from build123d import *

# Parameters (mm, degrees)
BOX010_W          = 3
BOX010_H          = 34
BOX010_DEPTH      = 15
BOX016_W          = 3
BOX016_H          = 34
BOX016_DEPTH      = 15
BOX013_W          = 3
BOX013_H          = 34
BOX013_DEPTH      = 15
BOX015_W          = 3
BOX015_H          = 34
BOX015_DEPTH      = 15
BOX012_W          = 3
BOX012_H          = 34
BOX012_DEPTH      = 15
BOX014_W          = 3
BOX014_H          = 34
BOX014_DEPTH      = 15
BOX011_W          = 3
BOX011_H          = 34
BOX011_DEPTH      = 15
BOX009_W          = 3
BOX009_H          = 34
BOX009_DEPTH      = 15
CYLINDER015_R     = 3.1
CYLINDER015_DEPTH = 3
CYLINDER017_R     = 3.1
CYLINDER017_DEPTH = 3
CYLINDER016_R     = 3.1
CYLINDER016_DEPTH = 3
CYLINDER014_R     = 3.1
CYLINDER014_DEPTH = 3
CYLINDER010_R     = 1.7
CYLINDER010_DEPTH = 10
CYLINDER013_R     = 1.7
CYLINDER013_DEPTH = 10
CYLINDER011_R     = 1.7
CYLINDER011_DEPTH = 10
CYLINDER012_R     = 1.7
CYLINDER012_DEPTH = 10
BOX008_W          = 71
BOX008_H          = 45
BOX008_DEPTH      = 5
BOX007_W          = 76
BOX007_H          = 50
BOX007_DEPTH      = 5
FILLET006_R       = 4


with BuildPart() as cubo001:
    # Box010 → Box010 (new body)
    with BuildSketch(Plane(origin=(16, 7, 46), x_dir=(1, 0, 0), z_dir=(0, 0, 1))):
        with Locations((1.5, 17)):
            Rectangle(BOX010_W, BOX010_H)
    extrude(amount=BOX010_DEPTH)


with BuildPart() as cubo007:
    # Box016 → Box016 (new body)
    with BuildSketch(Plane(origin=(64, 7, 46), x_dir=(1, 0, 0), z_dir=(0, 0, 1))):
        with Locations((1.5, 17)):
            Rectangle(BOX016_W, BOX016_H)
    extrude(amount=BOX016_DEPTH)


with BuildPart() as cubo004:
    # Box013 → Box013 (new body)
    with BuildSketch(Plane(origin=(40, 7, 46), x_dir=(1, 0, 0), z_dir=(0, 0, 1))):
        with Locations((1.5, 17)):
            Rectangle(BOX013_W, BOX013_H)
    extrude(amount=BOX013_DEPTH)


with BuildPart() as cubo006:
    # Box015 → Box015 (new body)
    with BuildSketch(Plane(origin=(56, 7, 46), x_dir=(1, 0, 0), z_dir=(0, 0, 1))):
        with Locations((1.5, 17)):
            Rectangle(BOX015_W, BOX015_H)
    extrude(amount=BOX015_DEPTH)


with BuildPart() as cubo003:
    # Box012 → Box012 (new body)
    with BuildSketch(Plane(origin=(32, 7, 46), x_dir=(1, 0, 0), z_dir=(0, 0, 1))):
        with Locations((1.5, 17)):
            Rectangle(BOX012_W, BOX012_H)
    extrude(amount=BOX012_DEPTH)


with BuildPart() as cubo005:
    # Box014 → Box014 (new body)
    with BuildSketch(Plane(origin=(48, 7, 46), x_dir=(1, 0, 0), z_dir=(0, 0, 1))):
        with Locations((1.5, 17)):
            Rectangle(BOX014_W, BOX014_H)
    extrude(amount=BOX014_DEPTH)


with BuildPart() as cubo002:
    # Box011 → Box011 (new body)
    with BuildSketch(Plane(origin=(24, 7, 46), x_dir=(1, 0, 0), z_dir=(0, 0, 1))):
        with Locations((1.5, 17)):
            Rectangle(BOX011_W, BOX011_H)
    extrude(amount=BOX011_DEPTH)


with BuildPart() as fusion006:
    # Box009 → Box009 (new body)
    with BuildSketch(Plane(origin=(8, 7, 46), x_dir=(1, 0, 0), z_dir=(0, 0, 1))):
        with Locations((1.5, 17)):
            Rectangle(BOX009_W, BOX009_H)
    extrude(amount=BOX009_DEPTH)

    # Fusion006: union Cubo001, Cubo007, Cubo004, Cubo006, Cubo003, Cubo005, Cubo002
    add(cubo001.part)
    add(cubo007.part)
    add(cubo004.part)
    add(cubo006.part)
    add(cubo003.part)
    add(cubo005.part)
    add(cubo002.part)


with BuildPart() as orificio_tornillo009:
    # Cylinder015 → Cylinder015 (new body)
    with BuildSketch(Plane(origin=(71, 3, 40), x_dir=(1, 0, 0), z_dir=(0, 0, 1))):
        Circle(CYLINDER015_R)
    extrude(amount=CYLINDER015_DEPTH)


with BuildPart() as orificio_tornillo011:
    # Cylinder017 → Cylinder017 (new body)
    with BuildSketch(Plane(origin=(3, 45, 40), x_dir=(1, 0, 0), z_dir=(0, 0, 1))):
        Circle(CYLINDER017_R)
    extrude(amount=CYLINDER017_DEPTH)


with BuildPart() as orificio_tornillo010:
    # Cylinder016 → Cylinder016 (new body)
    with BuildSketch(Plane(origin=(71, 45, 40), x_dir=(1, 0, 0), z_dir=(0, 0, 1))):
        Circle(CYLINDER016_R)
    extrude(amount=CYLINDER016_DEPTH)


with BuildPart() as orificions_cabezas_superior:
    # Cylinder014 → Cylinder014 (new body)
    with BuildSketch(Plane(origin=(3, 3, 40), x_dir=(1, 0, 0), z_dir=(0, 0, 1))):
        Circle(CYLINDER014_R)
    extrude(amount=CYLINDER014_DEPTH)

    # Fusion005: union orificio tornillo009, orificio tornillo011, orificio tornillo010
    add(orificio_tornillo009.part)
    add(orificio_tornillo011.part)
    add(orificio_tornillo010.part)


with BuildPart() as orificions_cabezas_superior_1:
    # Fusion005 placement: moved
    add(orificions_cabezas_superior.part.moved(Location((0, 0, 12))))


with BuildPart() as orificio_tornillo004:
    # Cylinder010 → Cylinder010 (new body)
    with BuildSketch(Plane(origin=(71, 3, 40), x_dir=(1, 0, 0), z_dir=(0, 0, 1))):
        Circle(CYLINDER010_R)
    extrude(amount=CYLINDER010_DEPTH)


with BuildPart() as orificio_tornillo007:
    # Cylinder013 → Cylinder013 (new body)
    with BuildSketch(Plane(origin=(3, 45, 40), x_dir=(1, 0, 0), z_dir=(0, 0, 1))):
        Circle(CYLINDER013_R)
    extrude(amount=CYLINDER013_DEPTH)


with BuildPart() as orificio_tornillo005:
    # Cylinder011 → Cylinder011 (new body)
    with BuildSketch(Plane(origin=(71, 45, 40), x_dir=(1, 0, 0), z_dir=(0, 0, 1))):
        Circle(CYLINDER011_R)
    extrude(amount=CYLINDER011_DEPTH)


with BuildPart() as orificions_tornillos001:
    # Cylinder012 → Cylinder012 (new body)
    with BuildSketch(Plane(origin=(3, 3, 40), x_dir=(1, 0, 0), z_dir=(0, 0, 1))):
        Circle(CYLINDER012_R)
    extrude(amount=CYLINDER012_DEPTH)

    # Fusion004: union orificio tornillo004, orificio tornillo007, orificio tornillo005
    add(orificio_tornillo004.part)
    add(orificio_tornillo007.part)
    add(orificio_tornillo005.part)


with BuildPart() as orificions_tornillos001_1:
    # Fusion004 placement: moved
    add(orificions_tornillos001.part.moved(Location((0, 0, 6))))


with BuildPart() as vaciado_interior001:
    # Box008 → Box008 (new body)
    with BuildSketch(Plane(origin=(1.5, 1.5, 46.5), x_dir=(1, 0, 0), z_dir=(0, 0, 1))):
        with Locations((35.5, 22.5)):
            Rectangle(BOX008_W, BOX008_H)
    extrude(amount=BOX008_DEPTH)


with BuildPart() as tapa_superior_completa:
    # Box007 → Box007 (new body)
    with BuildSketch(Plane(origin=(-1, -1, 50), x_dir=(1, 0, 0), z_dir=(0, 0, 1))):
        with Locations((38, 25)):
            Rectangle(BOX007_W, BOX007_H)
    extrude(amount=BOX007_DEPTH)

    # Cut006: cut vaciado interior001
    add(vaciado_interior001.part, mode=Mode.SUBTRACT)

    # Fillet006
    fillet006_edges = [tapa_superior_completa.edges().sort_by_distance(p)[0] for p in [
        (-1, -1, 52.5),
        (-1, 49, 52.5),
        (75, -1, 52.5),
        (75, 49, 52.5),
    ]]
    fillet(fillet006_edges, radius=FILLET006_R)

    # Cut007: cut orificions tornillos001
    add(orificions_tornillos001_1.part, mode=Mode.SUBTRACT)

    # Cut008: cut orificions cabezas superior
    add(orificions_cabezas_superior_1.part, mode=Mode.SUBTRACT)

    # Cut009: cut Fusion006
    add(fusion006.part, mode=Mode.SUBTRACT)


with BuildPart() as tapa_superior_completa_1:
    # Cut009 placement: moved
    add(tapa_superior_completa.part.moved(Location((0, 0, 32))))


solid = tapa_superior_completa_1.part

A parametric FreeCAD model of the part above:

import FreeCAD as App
import Part
import Sketcher
Q = App.Units.Quantity


def edges_at(feature, points):
    """Names of the edges that pass closest to the given points."""
    edges = feature.Shape.Edges
    near = lambda p: min(range(len(edges)), key=lambda i: edges[i].distToShape(Part.Vertex(*p))[0])
    return sorted({f"Edge{near(p) + 1}" for p in points})

doc = App.newDocument("Part")
body = doc.addObject("PartDesign::Body", "Body")

# Sketch on XY plane
sketch1 = doc.addObject("Sketcher::SketchObject", "Sketch")
body.addObject(sketch1)
sketch1.AttachmentSupport = (doc.XY_Plane, [""])
sketch1.MapMode = "FlatFace"
sketch1.AttachmentOffset = App.Placement(App.Vector(0, 0, 46), App.Rotation())
sketch1.addGeometry([
    Part.LineSegment(App.Vector(16, 41, 0), App.Vector(16, 7, 0)),
    Part.LineSegment(App.Vector(16, 7, 0), App.Vector(19, 7, 0)),
    Part.LineSegment(App.Vector(19, 7, 0), App.Vector(19, 41, 0)),
    Part.LineSegment(App.Vector(19, 41, 0), App.Vector(16, 41, 0)),
], False)
sketch1.addConstraint([
    Sketcher.Constraint("Coincident", 0, 2, 1, 1),
    Sketcher.Constraint("Coincident", 1, 2, 2, 1),
    Sketcher.Constraint("Coincident", 2, 2, 3, 1),
    Sketcher.Constraint("Coincident", 3, 2, 0, 1),
    Sketcher.Constraint("Vertical", 0),
    Sketcher.Constraint("Horizontal", 1),
    Sketcher.Constraint("Vertical", 2),
    Sketcher.Constraint("Horizontal", 3),
    Sketcher.Constraint("DistanceX", 1, 1, 1, 2, Q("3 mm")),
    Sketcher.Constraint("DistanceY", 0, 2, 0, 1, Q("34 mm")),
    Sketcher.Constraint("DistanceX", -1, 1, 0, 2, Q("16 mm")),
    Sketcher.Constraint("DistanceY", -1, 1, 0, 2, Q("7 mm")),
])
pad1 = doc.addObject("PartDesign::Pad", "Pad")
body.addObject(pad1)
pad1.Profile = sketch1
pad1.Length = 15
body2 = doc.addObject("PartDesign::Body", "Body001")

# Sketch on XY plane
sketch2 = doc.addObject("Sketcher::SketchObject", "Sketch001")
body2.addObject(sketch2)
sketch2.AttachmentSupport = (doc.getObject("XY_Plane001"), [""])
sketch2.MapMode = "FlatFace"
sketch2.AttachmentOffset = App.Placement(App.Vector(0, 0, 46), App.Rotation())
sketch2.addGeometry([
    Part.LineSegment(App.Vector(64, 41, 0), App.Vector(64, 7, 0)),
    Part.LineSegment(App.Vector(64, 7, 0), App.Vector(67, 7, 0)),
    Part.LineSegment(App.Vector(67, 7, 0), App.Vector(67, 41, 0)),
    Part.LineSegment(App.Vector(67, 41, 0), App.Vector(64, 41, 0)),
], False)
sketch2.addConstraint([
    Sketcher.Constraint("Coincident", 0, 2, 1, 1),
    Sketcher.Constraint("Coincident", 1, 2, 2, 1),
    Sketcher.Constraint("Coincident", 2, 2, 3, 1),
    Sketcher.Constraint("Coincident", 3, 2, 0, 1),
    Sketcher.Constraint("Vertical", 0),
    Sketcher.Constraint("Horizontal", 1),
    Sketcher.Constraint("Vertical", 2),
    Sketcher.Constraint("Horizontal", 3),
    Sketcher.Constraint("DistanceX", 1, 1, 1, 2, Q("3 mm")),
    Sketcher.Constraint("DistanceY", 0, 2, 0, 1, Q("34 mm")),
    Sketcher.Constraint("DistanceX", -1, 1, 0, 2, Q("64 mm")),
    Sketcher.Constraint("DistanceY", -1, 1, 0, 2, Q("7 mm")),
])
pad2 = doc.addObject("PartDesign::Pad", "Pad001")
body2.addObject(pad2)
pad2.Profile = sketch2
pad2.Length = 15
body3 = doc.addObject("PartDesign::Body", "Body002")

# Sketch on XY plane
sketch3 = doc.addObject("Sketcher::SketchObject", "Sketch002")
body3.addObject(sketch3)
sketch3.AttachmentSupport = (doc.getObject("XY_Plane002"), [""])
sketch3.MapMode = "FlatFace"
sketch3.AttachmentOffset = App.Placement(App.Vector(0, 0, 46), App.Rotation())
sketch3.addGeometry([
    Part.LineSegment(App.Vector(40, 41, 0), App.Vector(40, 7, 0)),
    Part.LineSegment(App.Vector(40, 7, 0), App.Vector(43, 7, 0)),
    Part.LineSegment(App.Vector(43, 7, 0), App.Vector(43, 41, 0)),
    Part.LineSegment(App.Vector(43, 41, 0), App.Vector(40, 41, 0)),
], False)
sketch3.addConstraint([
    Sketcher.Constraint("Coincident", 0, 2, 1, 1),
    Sketcher.Constraint("Coincident", 1, 2, 2, 1),
    Sketcher.Constraint("Coincident", 2, 2, 3, 1),
    Sketcher.Constraint("Coincident", 3, 2, 0, 1),
    Sketcher.Constraint("Vertical", 0),
    Sketcher.Constraint("Horizontal", 1),
    Sketcher.Constraint("Vertical", 2),
    Sketcher.Constraint("Horizontal", 3),
    Sketcher.Constraint("DistanceX", 1, 1, 1, 2, Q("3 mm")),
    Sketcher.Constraint("DistanceY", 0, 2, 0, 1, Q("34 mm")),
    Sketcher.Constraint("DistanceX", -1, 1, 0, 2, Q("40 mm")),
    Sketcher.Constraint("DistanceY", -1, 1, 0, 2, Q("7 mm")),
])
pad3 = doc.addObject("PartDesign::Pad", "Pad002")
body3.addObject(pad3)
pad3.Profile = sketch3
pad3.Length = 15
body4 = doc.addObject("PartDesign::Body", "Body003")

# Sketch on XY plane
sketch4 = doc.addObject("Sketcher::SketchObject", "Sketch003")
body4.addObject(sketch4)
sketch4.AttachmentSupport = (doc.getObject("XY_Plane003"), [""])
sketch4.MapMode = "FlatFace"
sketch4.AttachmentOffset = App.Placement(App.Vector(0, 0, 46), App.Rotation())
sketch4.addGeometry([
    Part.LineSegment(App.Vector(56, 41, 0), App.Vector(56, 7, 0)),
    Part.LineSegment(App.Vector(56, 7, 0), App.Vector(59, 7, 0)),
    Part.LineSegment(App.Vector(59, 7, 0), App.Vector(59, 41, 0)),
    Part.LineSegment(App.Vector(59, 41, 0), App.Vector(56, 41, 0)),
], False)
sketch4.addConstraint([
    Sketcher.Constraint("Coincident", 0, 2, 1, 1),
    Sketcher.Constraint("Coincident", 1, 2, 2, 1),
    Sketcher.Constraint("Coincident", 2, 2, 3, 1),
    Sketcher.Constraint("Coincident", 3, 2, 0, 1),
    Sketcher.Constraint("Vertical", 0),
    Sketcher.Constraint("Horizontal", 1),
    Sketcher.Constraint("Vertical", 2),
    Sketcher.Constraint("Horizontal", 3),
    Sketcher.Constraint("DistanceX", 1, 1, 1, 2, Q("3 mm")),
    Sketcher.Constraint("DistanceY", 0, 2, 0, 1, Q("34 mm")),
    Sketcher.Constraint("DistanceX", -1, 1, 0, 2, Q("56 mm")),
    Sketcher.Constraint("DistanceY", -1, 1, 0, 2, Q("7 mm")),
])
pad4 = doc.addObject("PartDesign::Pad", "Pad003")
body4.addObject(pad4)
pad4.Profile = sketch4
pad4.Length = 15
body5 = doc.addObject("PartDesign::Body", "Body004")

# Sketch on XY plane
sketch5 = doc.addObject("Sketcher::SketchObject", "Sketch004")
body5.addObject(sketch5)
sketch5.AttachmentSupport = (doc.getObject("XY_Plane004"), [""])
sketch5.MapMode = "FlatFace"
sketch5.AttachmentOffset = App.Placement(App.Vector(0, 0, 46), App.Rotation())
sketch5.addGeometry([
    Part.LineSegment(App.Vector(32, 41, 0), App.Vector(32, 7, 0)),
    Part.LineSegment(App.Vector(32, 7, 0), App.Vector(35, 7, 0)),
    Part.LineSegment(App.Vector(35, 7, 0), App.Vector(35, 41, 0)),
    Part.LineSegment(App.Vector(35, 41, 0), App.Vector(32, 41, 0)),
], False)
sketch5.addConstraint([
    Sketcher.Constraint("Coincident", 0, 2, 1, 1),
    Sketcher.Constraint("Coincident", 1, 2, 2, 1),
    Sketcher.Constraint("Coincident", 2, 2, 3, 1),
    Sketcher.Constraint("Coincident", 3, 2, 0, 1),
    Sketcher.Constraint("Vertical", 0),
    Sketcher.Constraint("Horizontal", 1),
    Sketcher.Constraint("Vertical", 2),
    Sketcher.Constraint("Horizontal", 3),
    Sketcher.Constraint("DistanceX", 1, 1, 1, 2, Q("3 mm")),
    Sketcher.Constraint("DistanceY", 0, 2, 0, 1, Q("34 mm")),
    Sketcher.Constraint("DistanceX", -1, 1, 0, 2, Q("32 mm")),
    Sketcher.Constraint("DistanceY", -1, 1, 0, 2, Q("7 mm")),
])
pad5 = doc.addObject("PartDesign::Pad", "Pad004")
body5.addObject(pad5)
pad5.Profile = sketch5
pad5.Length = 15
body6 = doc.addObject("PartDesign::Body", "Body005")

# Sketch on XY plane
sketch6 = doc.addObject("Sketcher::SketchObject", "Sketch005")
body6.addObject(sketch6)
sketch6.AttachmentSupport = (doc.getObject("XY_Plane005"), [""])
sketch6.MapMode = "FlatFace"
sketch6.AttachmentOffset = App.Placement(App.Vector(0, 0, 46), App.Rotation())
sketch6.addGeometry([
    Part.LineSegment(App.Vector(48, 41, 0), App.Vector(48, 7, 0)),
    Part.LineSegment(App.Vector(48, 7, 0), App.Vector(51, 7, 0)),
    Part.LineSegment(App.Vector(51, 7, 0), App.Vector(51, 41, 0)),
    Part.LineSegment(App.Vector(51, 41, 0), App.Vector(48, 41, 0)),
], False)
sketch6.addConstraint([
    Sketcher.Constraint("Coincident", 0, 2, 1, 1),
    Sketcher.Constraint("Coincident", 1, 2, 2, 1),
    Sketcher.Constraint("Coincident", 2, 2, 3, 1),
    Sketcher.Constraint("Coincident", 3, 2, 0, 1),
    Sketcher.Constraint("Vertical", 0),
    Sketcher.Constraint("Horizontal", 1),
    Sketcher.Constraint("Vertical", 2),
    Sketcher.Constraint("Horizontal", 3),
    Sketcher.Constraint("DistanceX", 1, 1, 1, 2, Q("3 mm")),
    Sketcher.Constraint("DistanceY", 0, 2, 0, 1, Q("34 mm")),
    Sketcher.Constraint("DistanceX", -1, 1, 0, 2, Q("48 mm")),
    Sketcher.Constraint("DistanceY", -1, 1, 0, 2, Q("7 mm")),
])
pad6 = doc.addObject("PartDesign::Pad", "Pad005")
body6.addObject(pad6)
pad6.Profile = sketch6
pad6.Length = 15
body7 = doc.addObject("PartDesign::Body", "Body006")

# Sketch on XY plane
sketch7 = doc.addObject("Sketcher::SketchObject", "Sketch006")
body7.addObject(sketch7)
sketch7.AttachmentSupport = (doc.getObject("XY_Plane006"), [""])
sketch7.MapMode = "FlatFace"
sketch7.AttachmentOffset = App.Placement(App.Vector(0, 0, 46), App.Rotation())
sketch7.addGeometry([
    Part.LineSegment(App.Vector(24, 41, 0), App.Vector(24, 7, 0)),
    Part.LineSegment(App.Vector(24, 7, 0), App.Vector(27, 7, 0)),
    Part.LineSegment(App.Vector(27, 7, 0), App.Vector(27, 41, 0)),
    Part.LineSegment(App.Vector(27, 41, 0), App.Vector(24, 41, 0)),
], False)
sketch7.addConstraint([
    Sketcher.Constraint("Coincident", 0, 2, 1, 1),
    Sketcher.Constraint("Coincident", 1, 2, 2, 1),
    Sketcher.Constraint("Coincident", 2, 2, 3, 1),
    Sketcher.Constraint("Coincident", 3, 2, 0, 1),
    Sketcher.Constraint("Vertical", 0),
    Sketcher.Constraint("Horizontal", 1),
    Sketcher.Constraint("Vertical", 2),
    Sketcher.Constraint("Horizontal", 3),
    Sketcher.Constraint("DistanceX", 1, 1, 1, 2, Q("3 mm")),
    Sketcher.Constraint("DistanceY", 0, 2, 0, 1, Q("34 mm")),
    Sketcher.Constraint("DistanceX", -1, 1, 0, 2, Q("24 mm")),
    Sketcher.Constraint("DistanceY", -1, 1, 0, 2, Q("7 mm")),
])
pad7 = doc.addObject("PartDesign::Pad", "Pad006")
body7.addObject(pad7)
pad7.Profile = sketch7
pad7.Length = 15
body8 = doc.addObject("PartDesign::Body", "Body007")
body8.AllowCompound = True

# Sketch on XY plane
sketch8 = doc.addObject("Sketcher::SketchObject", "Sketch007")
body8.addObject(sketch8)
sketch8.AttachmentSupport = (doc.getObject("XY_Plane007"), [""])
sketch8.MapMode = "FlatFace"
sketch8.AttachmentOffset = App.Placement(App.Vector(0, 0, 46), App.Rotation())
sketch8.addGeometry([
    Part.LineSegment(App.Vector(8, 41, 0), App.Vector(8, 7, 0)),
    Part.LineSegment(App.Vector(8, 7, 0), App.Vector(11, 7, 0)),
    Part.LineSegment(App.Vector(11, 7, 0), App.Vector(11, 41, 0)),
    Part.LineSegment(App.Vector(11, 41, 0), App.Vector(8, 41, 0)),
], False)
sketch8.addConstraint([
    Sketcher.Constraint("Coincident", 0, 2, 1, 1),
    Sketcher.Constraint("Coincident", 1, 2, 2, 1),
    Sketcher.Constraint("Coincident", 2, 2, 3, 1),
    Sketcher.Constraint("Coincident", 3, 2, 0, 1),
    Sketcher.Constraint("Vertical", 0),
    Sketcher.Constraint("Horizontal", 1),
    Sketcher.Constraint("Vertical", 2),
    Sketcher.Constraint("Horizontal", 3),
    Sketcher.Constraint("DistanceX", 1, 1, 1, 2, Q("3 mm")),
    Sketcher.Constraint("DistanceY", 0, 2, 0, 1, Q("34 mm")),
    Sketcher.Constraint("DistanceX", -1, 1, 0, 2, Q("8 mm")),
    Sketcher.Constraint("DistanceY", -1, 1, 0, 2, Q("7 mm")),
])
pad8 = doc.addObject("PartDesign::Pad", "Pad007")
body8.addObject(pad8)
pad8.Profile = sketch8
pad8.Length = 15
doc.recompute()

boolean = doc.addObject("PartDesign::Boolean", "Boolean")
body8.addObject(boolean)
boolean.Type = "Fuse"
boolean.addObjects([body])
doc.recompute()

boolean2 = doc.addObject("PartDesign::Boolean", "Boolean001")
body8.addObject(boolean2)
boolean2.Type = "Fuse"
boolean2.addObjects([body2])
doc.recompute()

boolean3 = doc.addObject("PartDesign::Boolean", "Boolean002")
body8.addObject(boolean3)
boolean3.Type = "Fuse"
boolean3.addObjects([body3])
doc.recompute()

boolean4 = doc.addObject("PartDesign::Boolean", "Boolean003")
body8.addObject(boolean4)
boolean4.Type = "Fuse"
boolean4.addObjects([body4])
doc.recompute()

boolean5 = doc.addObject("PartDesign::Boolean", "Boolean004")
body8.addObject(boolean5)
boolean5.Type = "Fuse"
boolean5.addObjects([body5])
doc.recompute()

boolean6 = doc.addObject("PartDesign::Boolean", "Boolean005")
body8.addObject(boolean6)
boolean6.Type = "Fuse"
boolean6.addObjects([body6])
doc.recompute()

boolean7 = doc.addObject("PartDesign::Boolean", "Boolean006")
body8.addObject(boolean7)
boolean7.Type = "Fuse"
boolean7.addObjects([body7])
body9 = doc.addObject("PartDesign::Body", "Body008")

# Sketch on XY plane
sketch9 = doc.addObject("Sketcher::SketchObject", "Sketch008")
body9.addObject(sketch9)
sketch9.AttachmentSupport = (doc.getObject("XY_Plane008"), [""])
sketch9.MapMode = "FlatFace"
sketch9.AttachmentOffset = App.Placement(App.Vector(0, 0, 40), App.Rotation())
sketch9.addGeometry(Part.Circle(App.Vector(71, 3, 0), App.Vector(0, 0, 1), 3.1), False)
sketch9.addConstraint([
    Sketcher.Constraint("Diameter", 0, Q("6.2 mm")),
    Sketcher.Constraint("DistanceX", -1, 1, 0, 3, Q("71 mm")),
    Sketcher.Constraint("DistanceY", -1, 1, 0, 3, Q("3 mm")),
])
pad9 = doc.addObject("PartDesign::Pad", "Pad008")
body9.addObject(pad9)
pad9.Profile = sketch9
pad9.Length = 3
body10 = doc.addObject("PartDesign::Body", "Body009")

# Sketch on XY plane
sketch10 = doc.addObject("Sketcher::SketchObject", "Sketch009")
body10.addObject(sketch10)
sketch10.AttachmentSupport = (doc.getObject("XY_Plane009"), [""])
sketch10.MapMode = "FlatFace"
sketch10.AttachmentOffset = App.Placement(App.Vector(0, 0, 40), App.Rotation())
sketch10.addGeometry(Part.Circle(App.Vector(3, 45, 0), App.Vector(0, 0, 1), 3.1), False)
sketch10.addConstraint([
    Sketcher.Constraint("Diameter", 0, Q("6.2 mm")),
    Sketcher.Constraint("DistanceX", -1, 1, 0, 3, Q("3 mm")),
    Sketcher.Constraint("DistanceY", -1, 1, 0, 3, Q("45 mm")),
])
pad10 = doc.addObject("PartDesign::Pad", "Pad009")
body10.addObject(pad10)
pad10.Profile = sketch10
pad10.Length = 3
body11 = doc.addObject("PartDesign::Body", "Body010")

# Sketch on XY plane
sketch11 = doc.addObject("Sketcher::SketchObject", "Sketch010")
body11.addObject(sketch11)
sketch11.AttachmentSupport = (doc.getObject("XY_Plane010"), [""])
sketch11.MapMode = "FlatFace"
sketch11.AttachmentOffset = App.Placement(App.Vector(0, 0, 40), App.Rotation())
sketch11.addGeometry(Part.Circle(App.Vector(71, 45, 0), App.Vector(0, 0, 1), 3.1), False)
sketch11.addConstraint([
    Sketcher.Constraint("Diameter", 0, Q("6.2 mm")),
    Sketcher.Constraint("DistanceX", -1, 1, 0, 3, Q("71 mm")),
    Sketcher.Constraint("DistanceY", -1, 1, 0, 3, Q("45 mm")),
])
pad11 = doc.addObject("PartDesign::Pad", "Pad010")
body11.addObject(pad11)
pad11.Profile = sketch11
pad11.Length = 3
body12 = doc.addObject("PartDesign::Body", "Body011")
body12.AllowCompound = True

# Sketch on XY plane
sketch12 = doc.addObject("Sketcher::SketchObject", "Sketch011")
body12.addObject(sketch12)
sketch12.AttachmentSupport = (doc.getObject("XY_Plane011"), [""])
sketch12.MapMode = "FlatFace"
sketch12.AttachmentOffset = App.Placement(App.Vector(0, 0, 40), App.Rotation())
sketch12.addGeometry(Part.Circle(App.Vector(3, 3, 0), App.Vector(0, 0, 1), 3.1), False)
sketch12.addConstraint([
    Sketcher.Constraint("Diameter", 0, Q("6.2 mm")),
    Sketcher.Constraint("DistanceX", -1, 1, 0, 3, Q("3 mm")),
    Sketcher.Constraint("DistanceY", -1, 1, 0, 3, Q("3 mm")),
])
pad12 = doc.addObject("PartDesign::Pad", "Pad011")
body12.addObject(pad12)
pad12.Profile = sketch12
pad12.Length = 3
doc.recompute()

boolean8 = doc.addObject("PartDesign::Boolean", "Boolean007")
body12.addObject(boolean8)
boolean8.Type = "Fuse"
boolean8.addObjects([body9])
doc.recompute()

boolean9 = doc.addObject("PartDesign::Boolean", "Boolean008")
body12.addObject(boolean9)
boolean9.Type = "Fuse"
boolean9.addObjects([body10])
doc.recompute()

boolean10 = doc.addObject("PartDesign::Boolean", "Boolean009")
body12.addObject(boolean10)
boolean10.Type = "Fuse"
boolean10.addObjects([body11])
body13 = doc.addObject("PartDesign::Body", "Body012")
body13.AllowCompound = True
doc.recompute()

body12.Placement = App.Placement(App.Vector(0, 0, 12), App.Rotation(App.Vector(0, 0, 1), 0))
boolean11 = doc.addObject("PartDesign::Boolean", "Boolean010")
body13.addObject(boolean11)
boolean11.Type = "Fuse"
boolean11.addObjects([body12])
body14 = doc.addObject("PartDesign::Body", "Body013")

# Sketch on XY plane
sketch13 = doc.addObject("Sketcher::SketchObject", "Sketch012")
body14.addObject(sketch13)
sketch13.AttachmentSupport = (doc.getObject("XY_Plane013"), [""])
sketch13.MapMode = "FlatFace"
sketch13.AttachmentOffset = App.Placement(App.Vector(0, 0, 40), App.Rotation())
sketch13.addGeometry(Part.Circle(App.Vector(71, 3, 0), App.Vector(0, 0, 1), 1.7), False)
sketch13.addConstraint([
    Sketcher.Constraint("Diameter", 0, Q("3.4 mm")),
    Sketcher.Constraint("DistanceX", -1, 1, 0, 3, Q("71 mm")),
    Sketcher.Constraint("DistanceY", -1, 1, 0, 3, Q("3 mm")),
])
pad13 = doc.addObject("PartDesign::Pad", "Pad012")
body14.addObject(pad13)
pad13.Profile = sketch13
pad13.Length = 10
body15 = doc.addObject("PartDesign::Body", "Body014")

# Sketch on XY plane
sketch14 = doc.addObject("Sketcher::SketchObject", "Sketch013")
body15.addObject(sketch14)
sketch14.AttachmentSupport = (doc.getObject("XY_Plane014"), [""])
sketch14.MapMode = "FlatFace"
sketch14.AttachmentOffset = App.Placement(App.Vector(0, 0, 40), App.Rotation())
sketch14.addGeometry(Part.Circle(App.Vector(3, 45, 0), App.Vector(0, 0, 1), 1.7), False)
sketch14.addConstraint([
    Sketcher.Constraint("Diameter", 0, Q("3.4 mm")),
    Sketcher.Constraint("DistanceX", -1, 1, 0, 3, Q("3 mm")),
    Sketcher.Constraint("DistanceY", -1, 1, 0, 3, Q("45 mm")),
])
pad14 = doc.addObject("PartDesign::Pad", "Pad013")
body15.addObject(pad14)
pad14.Profile = sketch14
pad14.Length = 10
body16 = doc.addObject("PartDesign::Body", "Body015")

# Sketch on XY plane
sketch15 = doc.addObject("Sketcher::SketchObject", "Sketch014")
body16.addObject(sketch15)
sketch15.AttachmentSupport = (doc.getObject("XY_Plane015"), [""])
sketch15.MapMode = "FlatFace"
sketch15.AttachmentOffset = App.Placement(App.Vector(0, 0, 40), App.Rotation())
sketch15.addGeometry(Part.Circle(App.Vector(71, 45, 0), App.Vector(0, 0, 1), 1.7), False)
sketch15.addConstraint([
    Sketcher.Constraint("Diameter", 0, Q("3.4 mm")),
    Sketcher.Constraint("DistanceX", -1, 1, 0, 3, Q("71 mm")),
    Sketcher.Constraint("DistanceY", -1, 1, 0, 3, Q("45 mm")),
])
pad15 = doc.addObject("PartDesign::Pad", "Pad014")
body16.addObject(pad15)
pad15.Profile = sketch15
pad15.Length = 10
body17 = doc.addObject("PartDesign::Body", "Body016")
body17.AllowCompound = True

# Sketch on XY plane
sketch16 = doc.addObject("Sketcher::SketchObject", "Sketch015")
body17.addObject(sketch16)
sketch16.AttachmentSupport = (doc.getObject("XY_Plane016"), [""])
sketch16.MapMode = "FlatFace"
sketch16.AttachmentOffset = App.Placement(App.Vector(0, 0, 40), App.Rotation())
sketch16.addGeometry(Part.Circle(App.Vector(3, 3, 0), App.Vector(0, 0, 1), 1.7), False)
sketch16.addConstraint([
    Sketcher.Constraint("Diameter", 0, Q("3.4 mm")),
    Sketcher.Constraint("DistanceX", -1, 1, 0, 3, Q("3 mm")),
    Sketcher.Constraint("DistanceY", -1, 1, 0, 3, Q("3 mm")),
])
pad16 = doc.addObject("PartDesign::Pad", "Pad015")
body17.addObject(pad16)
pad16.Profile = sketch16
pad16.Length = 10
doc.recompute()

boolean12 = doc.addObject("PartDesign::Boolean", "Boolean011")
body17.addObject(boolean12)
boolean12.Type = "Fuse"
boolean12.addObjects([body14])
doc.recompute()

boolean13 = doc.addObject("PartDesign::Boolean", "Boolean012")
body17.addObject(boolean13)
boolean13.Type = "Fuse"
boolean13.addObjects([body15])
doc.recompute()

boolean14 = doc.addObject("PartDesign::Boolean", "Boolean013")
body17.addObject(boolean14)
boolean14.Type = "Fuse"
boolean14.addObjects([body16])
body18 = doc.addObject("PartDesign::Body", "Body017")
body18.AllowCompound = True
doc.recompute()

body17.Placement = App.Placement(App.Vector(0, 0, 6), App.Rotation(App.Vector(0, 0, 1), 0))
boolean15 = doc.addObject("PartDesign::Boolean", "Boolean014")
body18.addObject(boolean15)
boolean15.Type = "Fuse"
boolean15.addObjects([body17])
body19 = doc.addObject("PartDesign::Body", "Body018")

# Sketch on XY plane
sketch17 = doc.addObject("Sketcher::SketchObject", "Sketch016")
body19.addObject(sketch17)
sketch17.AttachmentSupport = (doc.getObject("XY_Plane018"), [""])
sketch17.MapMode = "FlatFace"
sketch17.AttachmentOffset = App.Placement(App.Vector(0, 0, 46.5), App.Rotation())
sketch17.addGeometry([
    Part.LineSegment(App.Vector(2, 46, 0), App.Vector(2, 2, 0)),
    Part.LineSegment(App.Vector(2, 2, 0), App.Vector(72, 2, 0)),
    Part.LineSegment(App.Vector(72, 2, 0), App.Vector(72, 46, 0)),
    Part.LineSegment(App.Vector(72, 46, 0), App.Vector(2, 46, 0)),
], False)
sketch17.addConstraint([
    Sketcher.Constraint("Coincident", 0, 2, 1, 1),
    Sketcher.Constraint("Coincident", 1, 2, 2, 1),
    Sketcher.Constraint("Coincident", 2, 2, 3, 1),
    Sketcher.Constraint("Coincident", 3, 2, 0, 1),
    Sketcher.Constraint("Vertical", 0),
    Sketcher.Constraint("Horizontal", 1),
    Sketcher.Constraint("Vertical", 2),
    Sketcher.Constraint("Horizontal", 3),
    Sketcher.Constraint("DistanceX", 1, 1, 1, 2, Q("71 mm")),
    Sketcher.Constraint("DistanceY", 0, 2, 0, 1, Q("45 mm")),
    Sketcher.Constraint("DistanceX", -1, 1, 0, 2, Q("1.5 mm")),
    Sketcher.Constraint("DistanceY", -1, 1, 0, 2, Q("1.5 mm")),
])
pad17 = doc.addObject("PartDesign::Pad", "Pad016")
body19.addObject(pad17)
pad17.Profile = sketch17
pad17.Length = 5
body20 = doc.addObject("PartDesign::Body", "Body019")

# Sketch on XY plane
sketch18 = doc.addObject("Sketcher::SketchObject", "Sketch017")
body20.addObject(sketch18)
sketch18.AttachmentSupport = (doc.getObject("XY_Plane019"), [""])
sketch18.MapMode = "FlatFace"
sketch18.AttachmentOffset = App.Placement(App.Vector(0, 0, 50), App.Rotation())
sketch18.addGeometry([
    Part.LineSegment(App.Vector(-1, 49, 0), App.Vector(-1, -1, 0)),
    Part.LineSegment(App.Vector(-1, -1, 0), App.Vector(75, -1, 0)),
    Part.LineSegment(App.Vector(75, -1, 0), App.Vector(75, 49, 0)),
    Part.LineSegment(App.Vector(75, 49, 0), App.Vector(-1, 49, 0)),
], False)
sketch18.addConstraint([
    Sketcher.Constraint("Coincident", 0, 2, 1, 1),
    Sketcher.Constraint("Coincident", 1, 2, 2, 1),
    Sketcher.Constraint("Coincident", 2, 2, 3, 1),
    Sketcher.Constraint("Coincident", 3, 2, 0, 1),
    Sketcher.Constraint("Vertical", 0),
    Sketcher.Constraint("Horizontal", 1),
    Sketcher.Constraint("Vertical", 2),
    Sketcher.Constraint("Horizontal", 3),
    Sketcher.Constraint("DistanceX", 1, 1, 1, 2, Q("76 mm")),
    Sketcher.Constraint("DistanceY", 0, 2, 0, 1, Q("50 mm")),
    Sketcher.Constraint("DistanceX", 0, 2, -1, 1, Q("1 mm")),
    Sketcher.Constraint("DistanceY", 0, 2, -1, 1, Q("1 mm")),
])
pad18 = doc.addObject("PartDesign::Pad", "Pad017")
body20.addObject(pad18)
pad18.Profile = sketch18
pad18.Length = 5
doc.recompute()

boolean16 = doc.addObject("PartDesign::Boolean", "Boolean015")
body20.addObject(boolean16)
boolean16.Type = "Cut"
boolean16.addObjects([body19])
doc.recompute()

fillet = doc.addObject("PartDesign::Fillet", "Fillet")
body20.addObject(fillet)
fillet.Base = (boolean16, edges_at(boolean16, [
    (-1, -1, 52.5),
    (-1, 49, 52.5),
    (75, -1, 52.5),
    (75, 49, 52.5),
]))
fillet.Radius = 4
doc.recompute()

boolean17 = doc.addObject("PartDesign::Boolean", "Boolean016")
body20.addObject(boolean17)
boolean17.Type = "Cut"
boolean17.addObjects([body18])
doc.recompute()

boolean18 = doc.addObject("PartDesign::Boolean", "Boolean017")
body20.addObject(boolean18)
boolean18.Type = "Cut"
boolean18.addObjects([body13])
doc.recompute()

boolean19 = doc.addObject("PartDesign::Boolean", "Boolean018")
body20.addObject(boolean19)
boolean19.Type = "Cut"
boolean19.addObjects([body8])
body21 = doc.addObject("PartDesign::Body", "Body020")
doc.recompute()

body20.Placement = App.Placement(App.Vector(0, 0, 32), App.Rotation(App.Vector(0, 0, 1), 0))
boolean20 = doc.addObject("PartDesign::Boolean", "Boolean019")
body21.addObject(boolean20)
boolean20.Type = "Fuse"
boolean20.addObjects([body20])

doc.recompute()
